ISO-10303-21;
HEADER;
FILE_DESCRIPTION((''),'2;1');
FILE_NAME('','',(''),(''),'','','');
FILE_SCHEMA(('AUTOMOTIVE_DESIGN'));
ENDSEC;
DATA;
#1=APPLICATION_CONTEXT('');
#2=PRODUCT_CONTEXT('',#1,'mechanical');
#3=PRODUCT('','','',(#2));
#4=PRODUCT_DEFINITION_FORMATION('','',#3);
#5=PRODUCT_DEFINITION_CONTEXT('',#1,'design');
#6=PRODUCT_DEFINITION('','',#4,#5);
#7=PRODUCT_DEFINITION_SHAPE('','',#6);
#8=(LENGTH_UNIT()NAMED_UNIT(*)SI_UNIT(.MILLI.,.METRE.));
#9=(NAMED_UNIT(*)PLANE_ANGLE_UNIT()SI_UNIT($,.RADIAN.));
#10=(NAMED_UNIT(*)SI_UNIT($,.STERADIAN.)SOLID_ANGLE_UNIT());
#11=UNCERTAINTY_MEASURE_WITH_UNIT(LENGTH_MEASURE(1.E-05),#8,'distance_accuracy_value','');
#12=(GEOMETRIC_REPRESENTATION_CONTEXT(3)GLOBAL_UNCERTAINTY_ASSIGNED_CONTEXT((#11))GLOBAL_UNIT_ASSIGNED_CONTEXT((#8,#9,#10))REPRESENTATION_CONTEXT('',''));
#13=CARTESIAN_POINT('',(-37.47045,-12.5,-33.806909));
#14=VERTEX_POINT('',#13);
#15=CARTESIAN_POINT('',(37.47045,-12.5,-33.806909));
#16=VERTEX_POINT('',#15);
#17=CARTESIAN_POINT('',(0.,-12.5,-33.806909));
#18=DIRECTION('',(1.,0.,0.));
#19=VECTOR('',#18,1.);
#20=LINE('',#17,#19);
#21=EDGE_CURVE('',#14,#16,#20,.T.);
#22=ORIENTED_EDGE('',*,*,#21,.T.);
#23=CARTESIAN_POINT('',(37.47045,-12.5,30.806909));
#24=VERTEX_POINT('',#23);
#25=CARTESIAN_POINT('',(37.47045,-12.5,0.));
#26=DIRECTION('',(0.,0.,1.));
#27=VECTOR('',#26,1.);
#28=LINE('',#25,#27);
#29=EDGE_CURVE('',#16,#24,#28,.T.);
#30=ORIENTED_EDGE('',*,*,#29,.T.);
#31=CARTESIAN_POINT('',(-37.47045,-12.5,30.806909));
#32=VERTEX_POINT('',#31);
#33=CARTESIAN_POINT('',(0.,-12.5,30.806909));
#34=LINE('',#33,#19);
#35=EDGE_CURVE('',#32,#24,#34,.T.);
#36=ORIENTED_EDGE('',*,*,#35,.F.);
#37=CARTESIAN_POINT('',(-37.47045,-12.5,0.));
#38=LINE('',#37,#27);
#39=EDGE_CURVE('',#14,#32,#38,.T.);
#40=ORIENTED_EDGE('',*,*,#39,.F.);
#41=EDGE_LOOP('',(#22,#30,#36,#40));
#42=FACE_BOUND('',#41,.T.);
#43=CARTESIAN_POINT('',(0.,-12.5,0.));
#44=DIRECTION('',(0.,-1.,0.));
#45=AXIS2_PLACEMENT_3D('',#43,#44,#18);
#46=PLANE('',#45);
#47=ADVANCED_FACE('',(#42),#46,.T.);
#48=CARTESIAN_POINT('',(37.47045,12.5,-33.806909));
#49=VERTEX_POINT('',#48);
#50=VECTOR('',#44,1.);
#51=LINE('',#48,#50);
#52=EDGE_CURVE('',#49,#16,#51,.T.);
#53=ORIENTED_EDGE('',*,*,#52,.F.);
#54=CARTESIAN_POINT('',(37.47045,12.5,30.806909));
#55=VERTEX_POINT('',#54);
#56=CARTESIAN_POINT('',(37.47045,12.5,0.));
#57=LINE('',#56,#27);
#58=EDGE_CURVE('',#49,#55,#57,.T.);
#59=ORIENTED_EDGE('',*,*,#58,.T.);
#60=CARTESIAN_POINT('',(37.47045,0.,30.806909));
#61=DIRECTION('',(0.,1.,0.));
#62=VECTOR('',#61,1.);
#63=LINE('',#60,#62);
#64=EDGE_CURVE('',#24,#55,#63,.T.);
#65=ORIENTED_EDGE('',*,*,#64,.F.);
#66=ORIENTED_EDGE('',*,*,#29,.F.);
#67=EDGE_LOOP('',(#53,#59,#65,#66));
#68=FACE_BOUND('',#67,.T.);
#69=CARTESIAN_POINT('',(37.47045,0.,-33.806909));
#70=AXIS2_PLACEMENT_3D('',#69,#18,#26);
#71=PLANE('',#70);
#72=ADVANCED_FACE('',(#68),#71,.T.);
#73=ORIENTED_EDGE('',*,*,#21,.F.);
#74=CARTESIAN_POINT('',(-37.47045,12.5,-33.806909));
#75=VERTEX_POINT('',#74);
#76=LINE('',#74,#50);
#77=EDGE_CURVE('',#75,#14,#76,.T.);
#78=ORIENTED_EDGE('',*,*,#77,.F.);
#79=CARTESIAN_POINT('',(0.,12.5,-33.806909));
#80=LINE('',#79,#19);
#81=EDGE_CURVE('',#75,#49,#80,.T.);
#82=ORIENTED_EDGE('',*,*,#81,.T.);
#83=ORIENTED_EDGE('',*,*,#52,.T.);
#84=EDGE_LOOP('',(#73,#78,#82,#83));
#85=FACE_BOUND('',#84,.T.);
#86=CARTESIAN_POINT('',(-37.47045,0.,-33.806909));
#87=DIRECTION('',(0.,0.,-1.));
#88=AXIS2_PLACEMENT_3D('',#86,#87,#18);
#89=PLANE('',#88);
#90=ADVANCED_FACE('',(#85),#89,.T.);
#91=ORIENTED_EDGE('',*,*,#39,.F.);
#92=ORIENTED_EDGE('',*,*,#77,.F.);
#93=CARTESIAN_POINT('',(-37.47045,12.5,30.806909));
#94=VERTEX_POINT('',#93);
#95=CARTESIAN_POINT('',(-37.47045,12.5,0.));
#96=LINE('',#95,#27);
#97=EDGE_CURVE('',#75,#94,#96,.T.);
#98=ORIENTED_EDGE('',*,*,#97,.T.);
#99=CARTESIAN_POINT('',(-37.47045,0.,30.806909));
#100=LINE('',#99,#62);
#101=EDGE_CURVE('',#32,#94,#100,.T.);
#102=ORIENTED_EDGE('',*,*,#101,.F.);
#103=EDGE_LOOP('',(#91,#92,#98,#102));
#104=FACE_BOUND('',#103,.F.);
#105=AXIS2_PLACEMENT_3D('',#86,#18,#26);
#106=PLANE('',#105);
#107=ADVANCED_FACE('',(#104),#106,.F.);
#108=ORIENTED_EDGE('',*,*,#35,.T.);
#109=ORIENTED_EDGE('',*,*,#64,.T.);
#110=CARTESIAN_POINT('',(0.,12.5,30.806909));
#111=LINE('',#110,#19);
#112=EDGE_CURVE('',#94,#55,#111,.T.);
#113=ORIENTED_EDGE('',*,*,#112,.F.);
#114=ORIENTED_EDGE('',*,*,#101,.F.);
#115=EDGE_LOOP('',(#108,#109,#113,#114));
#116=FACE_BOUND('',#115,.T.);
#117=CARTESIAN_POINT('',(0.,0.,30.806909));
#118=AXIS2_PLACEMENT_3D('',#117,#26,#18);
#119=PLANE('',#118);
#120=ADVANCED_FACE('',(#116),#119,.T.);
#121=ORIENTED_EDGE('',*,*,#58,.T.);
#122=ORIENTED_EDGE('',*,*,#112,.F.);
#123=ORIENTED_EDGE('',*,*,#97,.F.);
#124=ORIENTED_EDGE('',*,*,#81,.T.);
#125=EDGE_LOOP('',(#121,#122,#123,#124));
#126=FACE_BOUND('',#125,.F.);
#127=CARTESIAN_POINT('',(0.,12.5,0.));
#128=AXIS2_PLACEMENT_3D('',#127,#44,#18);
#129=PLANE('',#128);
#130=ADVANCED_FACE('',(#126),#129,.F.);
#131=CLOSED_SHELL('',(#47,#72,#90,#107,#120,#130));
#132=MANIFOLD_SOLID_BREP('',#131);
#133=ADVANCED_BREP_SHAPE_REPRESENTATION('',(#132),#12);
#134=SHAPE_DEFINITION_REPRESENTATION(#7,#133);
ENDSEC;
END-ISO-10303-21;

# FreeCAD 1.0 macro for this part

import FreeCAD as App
import Part
import Sketcher
from FreeCAD import Vector
Q = App.Units.Quantity

doc = App.newDocument("Part")
body = doc.addObject("PartDesign::Body", "Body")

# Sketch on XZ plane
sketch1 = body.newObject("Sketcher::SketchObject", "Sketch")
sketch1.AttachmentSupport = (doc.getObject("XZ_Plane"), [""])
sketch1.MapMode = "FlatFace"
sketch1.addGeometry([
    Part.LineSegment(Vector(-37, 34, 0), Vector(-37, -34, 0)),
    Part.LineSegment(Vector(-37, -34, 0), Vector(37, -34, 0)),
    Part.LineSegment(Vector(37, -34, 0), Vector(37, 34, 0)),
    Part.LineSegment(Vector(37, 34, 0), Vector(-37, 34, 0)),
], False)
sketch1.addConstraint([
    Sketcher.Constraint("Coincident", 0, 2, 1, 1),
    Sketcher.Constraint("Coincident", 1, 2, 2, 1),
    Sketcher.Constraint("Coincident", 2, 2, 3, 1),
    Sketcher.Constraint("Coincident", 3, 2, 0, 1),
    Sketcher.Constraint("Vertical", 0),
    Sketcher.Constraint("Horizontal", 1),
    Sketcher.Constraint("Vertical", 2),
    Sketcher.Constraint("Horizontal", 3),
    Sketcher.Constraint("Symmetric", 0, 2, 2, 2, -1, 1),
    Sketcher.Constraint("DistanceX", 1, 1, 1, 2, Q("74.9409 mm")),
    Sketcher.Constraint("DistanceY", 0, 2, 0, 1, Q("67.613818 mm")),
])
pad1 = body.newObject("PartDesign::Pad", "Pad")
pad1.Profile = sketch1
pad1.Length = 25
pad1.Midplane = True

# Sketch on XY plane
sketch2 = body.newObject("Sketcher::SketchObject", "Sketch001")
sketch2.AttachmentSupport = (doc.getObject("XY_Plane"), [""])
sketch2.MapMode = "FlatFace"
sketch2.AttachmentOffset = App.Placement(Vector(0, 0, 33.806909), App.Rotation())
sketch2.addGeometry([
    Part.LineSegment(Vector(-37, 12, 0), Vector(-37, -12, 0)),
    Part.LineSegment(Vector(-37, -12, 0), Vector(37, -12, 0)),
    Part.LineSegment(Vector(37, -12, 0), Vector(37, 12, 0)),
    Part.LineSegment(Vector(37, 12, 0), Vector(-37, 12, 0)),
], False)
sketch2.addConstraint([
    Sketcher.Constraint("Coincident", 0, 2, 1, 1),
    Sketcher.Constraint("Coincident", 1, 2, 2, 1),
    Sketcher.Constraint("Coincident", 2, 2, 3, 1),
    Sketcher.Constraint("Coincident", 3, 2, 0, 1),
    Sketcher.Constraint("Vertical", 0),
    Sketcher.Constraint("Horizontal", 1),
    Sketcher.Constraint("Vertical", 2),
    Sketcher.Constraint("Horizontal", 3),
    Sketcher.Constraint("Symmetric", 0, 2, 2, 2, -1, 1),
    Sketcher.Constraint("DistanceY", 0, 2, 0, 1, Q("25 mm")),
    Sketcher.Constraint("DistanceX", 1, 1, 1, 2, Q("74.9409 mm")),
])
pocket1 = body.newObject("PartDesign::Pocket", "Pocket")
pocket1.Profile = sketch2
pocket1.Length = 3

doc.recompute()
